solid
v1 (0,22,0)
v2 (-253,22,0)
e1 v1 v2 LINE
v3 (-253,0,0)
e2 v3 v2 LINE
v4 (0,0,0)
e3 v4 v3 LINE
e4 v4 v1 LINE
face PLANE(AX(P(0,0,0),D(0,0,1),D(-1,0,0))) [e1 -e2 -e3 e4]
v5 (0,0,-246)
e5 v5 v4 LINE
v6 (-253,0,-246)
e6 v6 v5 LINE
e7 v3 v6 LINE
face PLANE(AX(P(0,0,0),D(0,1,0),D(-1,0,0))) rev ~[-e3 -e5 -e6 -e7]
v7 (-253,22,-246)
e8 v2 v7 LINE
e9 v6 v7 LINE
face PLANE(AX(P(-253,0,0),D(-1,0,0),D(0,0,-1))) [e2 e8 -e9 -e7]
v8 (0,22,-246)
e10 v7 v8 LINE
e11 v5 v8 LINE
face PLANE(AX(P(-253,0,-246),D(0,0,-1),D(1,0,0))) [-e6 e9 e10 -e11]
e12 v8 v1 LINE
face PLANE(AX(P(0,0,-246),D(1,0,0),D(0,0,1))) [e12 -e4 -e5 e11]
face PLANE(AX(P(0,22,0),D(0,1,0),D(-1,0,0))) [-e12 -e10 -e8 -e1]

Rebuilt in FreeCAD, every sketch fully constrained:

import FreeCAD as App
import Part
import Sketcher
from FreeCAD import Vector
Q = App.Units.Quantity

doc = App.newDocument("Part")
body = doc.addObject("PartDesign::Body", "Body")

# Sketch on XZ plane
sketch1 = body.newObject("Sketcher::SketchObject", "Sketch")
sketch1.AttachmentSupport = (doc.getObject("XZ_Plane"), [""])
sketch1.MapMode = "FlatFace"
sketch1.addGeometry(Part.LineSegment(Vector(-253, 0, 0), Vector(0, 0, 0)), False)
sketch1.addGeometry(Part.LineSegment(Vector(0, 0, 0), Vector(0, -246, 0)), False)
sketch1.addGeometry(Part.LineSegment(Vector(0, -246, 0), Vector(-253, -246, 0)), False)
sketch1.addGeometry(Part.LineSegment(Vector(-253, -246, 0), Vector(-253, 0, 0)), False)
sketch1.addConstraint(Sketcher.Constraint("Coincident", 0, 2, 1, 1))
sketch1.addConstraint(Sketcher.Constraint("Coincident", 1, 2, 2, 1))
sketch1.addConstraint(Sketcher.Constraint("Coincident", 2, 2, 3, 1))
sketch1.addConstraint(Sketcher.Constraint("Coincident", 3, 2, 0, 1))
sketch1.addConstraint(Sketcher.Constraint("Horizontal", 0))
sketch1.addConstraint(Sketcher.Constraint("Vertical", 1))
sketch1.addConstraint(Sketcher.Constraint("Horizontal", 2))
sketch1.addConstraint(Sketcher.Constraint("Vertical", 3))
sketch1.addConstraint(Sketcher.Constraint("Coincident", 0, 2, -1, 1))
sketch1.addConstraint(Sketcher.Constraint("DistanceX", 0, 1, 0, 2, Q("253 mm")))
sketch1.addConstraint(Sketcher.Constraint("DistanceY", 1, 2, 1, 1, Q("246 mm")))
pad1 = body.newObject("PartDesign::Pad", "Pad")
pad1.Profile = sketch1
pad1.Length = 22
pad1.Reversed = True

doc.recompute()
